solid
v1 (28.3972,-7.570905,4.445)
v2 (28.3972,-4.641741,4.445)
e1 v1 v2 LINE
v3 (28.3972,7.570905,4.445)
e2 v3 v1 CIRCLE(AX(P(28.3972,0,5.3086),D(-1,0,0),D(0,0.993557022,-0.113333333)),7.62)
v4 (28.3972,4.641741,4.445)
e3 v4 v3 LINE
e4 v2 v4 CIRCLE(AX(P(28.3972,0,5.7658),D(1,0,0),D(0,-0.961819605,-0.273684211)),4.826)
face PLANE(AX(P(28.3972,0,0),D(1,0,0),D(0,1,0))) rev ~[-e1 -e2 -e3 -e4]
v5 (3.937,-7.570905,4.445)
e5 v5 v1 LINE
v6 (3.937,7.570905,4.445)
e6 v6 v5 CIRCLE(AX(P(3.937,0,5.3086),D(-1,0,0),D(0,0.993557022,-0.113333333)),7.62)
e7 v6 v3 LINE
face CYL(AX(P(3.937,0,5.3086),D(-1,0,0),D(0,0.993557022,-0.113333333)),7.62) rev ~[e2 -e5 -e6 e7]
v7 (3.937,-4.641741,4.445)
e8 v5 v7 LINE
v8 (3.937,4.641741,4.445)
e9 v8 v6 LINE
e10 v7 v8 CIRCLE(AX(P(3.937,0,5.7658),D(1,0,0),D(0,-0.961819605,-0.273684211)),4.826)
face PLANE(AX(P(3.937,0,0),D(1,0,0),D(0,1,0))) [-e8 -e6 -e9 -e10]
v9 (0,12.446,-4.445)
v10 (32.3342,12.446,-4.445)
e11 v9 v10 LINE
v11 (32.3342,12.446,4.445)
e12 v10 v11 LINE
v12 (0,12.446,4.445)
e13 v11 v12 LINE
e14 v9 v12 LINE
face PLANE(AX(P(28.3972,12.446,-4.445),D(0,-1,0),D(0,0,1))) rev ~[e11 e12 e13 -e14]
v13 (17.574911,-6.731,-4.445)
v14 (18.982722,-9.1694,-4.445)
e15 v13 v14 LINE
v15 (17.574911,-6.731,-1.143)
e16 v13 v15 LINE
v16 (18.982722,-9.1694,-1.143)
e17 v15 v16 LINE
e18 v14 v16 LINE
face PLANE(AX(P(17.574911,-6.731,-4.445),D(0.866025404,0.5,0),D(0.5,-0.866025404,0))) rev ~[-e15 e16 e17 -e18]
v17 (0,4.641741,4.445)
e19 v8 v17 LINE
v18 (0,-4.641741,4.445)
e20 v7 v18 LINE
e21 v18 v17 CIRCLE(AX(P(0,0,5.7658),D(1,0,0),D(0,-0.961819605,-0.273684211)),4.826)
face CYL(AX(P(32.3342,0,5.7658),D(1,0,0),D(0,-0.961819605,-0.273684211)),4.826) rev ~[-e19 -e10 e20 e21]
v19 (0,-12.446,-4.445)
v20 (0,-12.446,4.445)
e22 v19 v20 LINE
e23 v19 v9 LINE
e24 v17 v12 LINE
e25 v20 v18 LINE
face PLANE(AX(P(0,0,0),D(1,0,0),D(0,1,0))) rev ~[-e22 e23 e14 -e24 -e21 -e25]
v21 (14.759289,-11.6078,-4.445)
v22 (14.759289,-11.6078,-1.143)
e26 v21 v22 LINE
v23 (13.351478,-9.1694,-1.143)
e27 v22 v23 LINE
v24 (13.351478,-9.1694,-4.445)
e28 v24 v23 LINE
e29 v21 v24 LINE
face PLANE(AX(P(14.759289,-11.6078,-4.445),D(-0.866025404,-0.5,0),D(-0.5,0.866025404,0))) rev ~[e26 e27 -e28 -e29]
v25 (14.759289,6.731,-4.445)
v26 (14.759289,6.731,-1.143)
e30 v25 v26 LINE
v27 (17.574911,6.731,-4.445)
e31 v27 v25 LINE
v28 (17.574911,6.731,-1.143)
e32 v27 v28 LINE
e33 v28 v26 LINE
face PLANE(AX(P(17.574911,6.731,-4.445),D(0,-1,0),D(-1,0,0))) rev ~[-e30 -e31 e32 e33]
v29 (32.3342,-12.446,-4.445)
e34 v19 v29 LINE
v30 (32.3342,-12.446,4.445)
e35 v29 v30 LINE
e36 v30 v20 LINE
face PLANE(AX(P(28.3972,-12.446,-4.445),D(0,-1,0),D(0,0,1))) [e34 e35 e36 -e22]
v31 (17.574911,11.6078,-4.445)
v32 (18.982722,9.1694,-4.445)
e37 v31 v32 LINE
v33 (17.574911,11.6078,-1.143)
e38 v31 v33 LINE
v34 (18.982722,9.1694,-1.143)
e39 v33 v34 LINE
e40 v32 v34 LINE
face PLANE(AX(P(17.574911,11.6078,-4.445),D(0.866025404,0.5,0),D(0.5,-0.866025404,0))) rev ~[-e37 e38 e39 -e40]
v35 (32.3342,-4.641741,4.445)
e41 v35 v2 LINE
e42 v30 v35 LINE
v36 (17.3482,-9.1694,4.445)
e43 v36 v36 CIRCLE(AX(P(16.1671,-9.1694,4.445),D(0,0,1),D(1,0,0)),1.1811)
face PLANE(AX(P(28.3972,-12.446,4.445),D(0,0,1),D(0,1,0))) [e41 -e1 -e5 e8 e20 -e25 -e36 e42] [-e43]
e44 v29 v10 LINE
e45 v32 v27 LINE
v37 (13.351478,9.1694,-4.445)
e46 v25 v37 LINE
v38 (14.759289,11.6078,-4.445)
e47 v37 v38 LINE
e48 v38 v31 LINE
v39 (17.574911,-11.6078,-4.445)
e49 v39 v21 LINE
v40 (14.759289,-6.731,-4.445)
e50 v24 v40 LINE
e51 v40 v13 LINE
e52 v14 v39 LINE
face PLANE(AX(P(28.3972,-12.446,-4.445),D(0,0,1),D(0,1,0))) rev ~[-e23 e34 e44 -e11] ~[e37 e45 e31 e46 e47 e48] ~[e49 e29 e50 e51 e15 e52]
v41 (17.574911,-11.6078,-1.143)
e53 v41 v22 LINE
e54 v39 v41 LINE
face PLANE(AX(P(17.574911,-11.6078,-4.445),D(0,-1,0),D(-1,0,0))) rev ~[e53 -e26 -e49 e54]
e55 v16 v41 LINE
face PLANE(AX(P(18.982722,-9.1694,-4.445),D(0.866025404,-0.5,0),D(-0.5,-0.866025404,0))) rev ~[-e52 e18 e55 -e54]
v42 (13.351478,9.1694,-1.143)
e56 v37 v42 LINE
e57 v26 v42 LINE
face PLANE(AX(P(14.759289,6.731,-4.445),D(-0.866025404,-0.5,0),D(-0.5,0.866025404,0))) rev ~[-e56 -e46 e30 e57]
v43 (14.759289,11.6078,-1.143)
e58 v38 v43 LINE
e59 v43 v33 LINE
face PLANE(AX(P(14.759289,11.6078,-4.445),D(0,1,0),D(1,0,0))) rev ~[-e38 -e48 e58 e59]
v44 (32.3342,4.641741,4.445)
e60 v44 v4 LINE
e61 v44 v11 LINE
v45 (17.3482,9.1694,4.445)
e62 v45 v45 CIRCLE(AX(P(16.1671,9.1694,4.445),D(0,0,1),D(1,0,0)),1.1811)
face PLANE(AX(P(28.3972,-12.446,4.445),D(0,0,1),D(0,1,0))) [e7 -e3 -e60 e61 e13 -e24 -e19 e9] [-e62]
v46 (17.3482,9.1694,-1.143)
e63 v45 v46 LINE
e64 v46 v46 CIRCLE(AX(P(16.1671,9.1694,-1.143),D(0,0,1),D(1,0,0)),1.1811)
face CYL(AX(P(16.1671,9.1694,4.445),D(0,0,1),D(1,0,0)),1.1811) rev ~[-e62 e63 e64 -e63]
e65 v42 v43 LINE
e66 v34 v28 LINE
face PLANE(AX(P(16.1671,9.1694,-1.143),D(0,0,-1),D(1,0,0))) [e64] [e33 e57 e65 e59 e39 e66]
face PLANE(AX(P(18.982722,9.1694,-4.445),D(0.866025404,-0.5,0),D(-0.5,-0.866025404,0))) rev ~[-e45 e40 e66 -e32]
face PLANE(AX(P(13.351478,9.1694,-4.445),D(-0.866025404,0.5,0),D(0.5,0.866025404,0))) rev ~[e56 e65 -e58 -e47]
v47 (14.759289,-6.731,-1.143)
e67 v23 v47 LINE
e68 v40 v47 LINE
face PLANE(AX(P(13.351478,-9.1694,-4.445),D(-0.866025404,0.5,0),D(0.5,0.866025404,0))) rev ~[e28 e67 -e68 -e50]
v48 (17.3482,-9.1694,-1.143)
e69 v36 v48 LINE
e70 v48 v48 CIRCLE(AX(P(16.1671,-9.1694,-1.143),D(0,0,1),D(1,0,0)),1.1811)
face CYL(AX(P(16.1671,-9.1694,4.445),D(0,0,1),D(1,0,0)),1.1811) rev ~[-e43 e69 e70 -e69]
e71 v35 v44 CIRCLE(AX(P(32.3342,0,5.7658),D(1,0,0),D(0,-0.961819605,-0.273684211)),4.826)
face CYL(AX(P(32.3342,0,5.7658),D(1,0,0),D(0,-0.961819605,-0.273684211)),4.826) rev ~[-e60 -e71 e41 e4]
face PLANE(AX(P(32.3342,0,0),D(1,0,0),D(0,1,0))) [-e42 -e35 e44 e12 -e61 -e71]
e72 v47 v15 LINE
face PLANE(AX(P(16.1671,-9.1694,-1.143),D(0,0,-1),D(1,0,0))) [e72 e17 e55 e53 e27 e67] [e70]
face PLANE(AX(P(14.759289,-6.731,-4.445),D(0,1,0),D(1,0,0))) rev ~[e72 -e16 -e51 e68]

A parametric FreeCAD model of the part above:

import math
import FreeCAD as App
import Part
import Sketcher
Q = App.Units.Quantity


def add_polygon(sketch, points):
    """Adds a closed chain of lines whose ends are joined by coincident constraints."""
    first, n = sketch.GeometryCount, len(points)
    for a, b in zip(points, points[1:] + points[:1]):
        sketch.addGeometry(Part.LineSegment(App.Vector(*a, 0), App.Vector(*b, 0)), False)
    for i in range(n):
        sketch.addConstraint(Sketcher.Constraint("Coincident", first + i, 2, first + (i + 1) % n, 1))

doc = App.newDocument("Part")
body = doc.addObject("PartDesign::Body", "Body")

# Sketch on YZ plane
sketch1 = body.newObject("Sketcher::SketchObject", "Sketch")
sketch1.AttachmentSupport = (doc.getObject("YZ_Plane"), [""])
sketch1.MapMode = "FlatFace"
add_polygon(sketch1, [(-12, 4), (-12, -4), (12, -4), (12, 4)])  # lines 0-3
sketch1.addConstraint([
    Sketcher.Constraint("Vertical", 0),
    Sketcher.Constraint("Horizontal", 1),
    Sketcher.Constraint("Vertical", 2),
    Sketcher.Constraint("Horizontal", 3),
    Sketcher.Constraint("Symmetric", 0, 2, 2, 2, -1, 1),
    Sketcher.Constraint("DistanceX", 1, 1, 1, 2, Q("0.98 in")),
    Sketcher.Constraint("DistanceY", 0, 2, 0, 1, Q("0.35 in")),
])
pad1 = body.newObject("PartDesign::Pad", "Pad")
pad1.Profile = sketch1
pad1.Length = Q("0.155 in")

# Sketch on YZ plane
sketch2 = body.newObject("Sketcher::SketchObject", "Sketch001")
sketch2.AttachmentSupport = (doc.getObject("YZ_Plane"), [""])
sketch2.MapMode = "FlatFace"
sketch2.AttachmentOffset = App.Placement(App.Vector(0, 0, 0.155 * 25.4), App.Rotation())
sketch2.addGeometry([
    Part.LineSegment(App.Vector(-7.6, 4.4, 0), App.Vector(-12.4, 4.4, 0)),  # 0
    Part.LineSegment(App.Vector(-12.4, 4.4, 0), App.Vector(-12.4, -4.4, 0)),  # 1
    Part.LineSegment(App.Vector(-12.4, -4.4, 0), App.Vector(12.4, -4.4, 0)),  # 2
    Part.LineSegment(App.Vector(12.4, -4.4, 0), App.Vector(12.4, 4.4, 0)),  # 3
    Part.LineSegment(App.Vector(12.4, 4.4, 0), App.Vector(7.6, 4.4, 0)),  # 4
    Part.ArcOfCircle(Part.Circle(App.Vector(0, 5.3, 0), App.Vector(0, 0, 1), 7.6), math.radians(-173), math.radians(-7)),  # 5
], False)
sketch2.addConstraint([
    Sketcher.Constraint("Coincident", 0, 2, 1, 1),
    Sketcher.Constraint("Coincident", 1, 2, 2, 1),
    Sketcher.Constraint("Coincident", 2, 2, 3, 1),
    Sketcher.Constraint("Coincident", 3, 2, 4, 1),
    Sketcher.Constraint("Coincident", 4, 2, 5, 2),
    Sketcher.Constraint("Coincident", 5, 1, 0, 1),
    Sketcher.Constraint("Horizontal", 0),
    Sketcher.Constraint("Vertical", 1),
    Sketcher.Constraint("Horizontal", 2),
    Sketcher.Constraint("Vertical", 3),
    Sketcher.Constraint("Horizontal", 4),
    Sketcher.Constraint("Symmetric", 0, 2, 2, 2, -1, 1),
    Sketcher.Constraint("Symmetric", 4, 2, 5, 1, -2),
    Sketcher.Constraint("Radius", 5, Q("0.3 in")),
    Sketcher.Constraint("DistanceX", 2, 1, 2, 2, Q("0.98 in")),
    Sketcher.Constraint("DistanceY", 1, 2, 1, 1, Q("0.35 in")),
    Sketcher.Constraint("DistanceY", -1, 1, 5, 3, Q("0.209 in")),
])
pad2 = body.newObject("PartDesign::Pad", "Pad001")
pad2.Profile = sketch2
pad2.Length = Q("0.963 in")

# Sketch on YZ plane
sketch3 = body.newObject("Sketcher::SketchObject", "Sketch002")
sketch3.AttachmentSupport = (doc.getObject("YZ_Plane"), [""])
sketch3.MapMode = "FlatFace"
sketch3.AttachmentOffset = App.Placement(App.Vector(0, 0, 1.118 * 25.4), App.Rotation())
add_polygon(sketch3, [(-12, 4), (-12, -4), (12, -4), (12, 4)])  # lines 0-3
sketch3.addConstraint([
    Sketcher.Constraint("Vertical", 0),
    Sketcher.Constraint("Horizontal", 1),
    Sketcher.Constraint("Vertical", 2),
    Sketcher.Constraint("Horizontal", 3),
    Sketcher.Constraint("Symmetric", 0, 2, 2, 2, -1, 1),
    Sketcher.Constraint("DistanceX", 1, 1, 1, 2, Q("0.98 in")),
    Sketcher.Constraint("DistanceY", 0, 2, 0, 1, Q("0.35 in")),
])
pad3 = body.newObject("PartDesign::Pad", "Pad002")
pad3.Profile = sketch3
pad3.Length = Q("0.155 in")

# Sketch on YZ plane
sketch4 = body.newObject("Sketcher::SketchObject", "Sketch003")
sketch4.AttachmentSupport = (doc.getObject("YZ_Plane"), [""])
sketch4.MapMode = "FlatFace"
sketch4.AttachmentOffset = App.Placement(App.Vector(0, 0, 1.273 * 25.4), App.Rotation())
sketch4.addGeometry([
    Part.LineSegment(App.Vector(4.6, 4.4, 0), App.Vector(-4.6, 4.4, 0)),
    Part.ArcOfCircle(Part.Circle(App.Vector(0, 5.8, 0), App.Vector(0, 0, 1), 4.8), math.radians(-164), math.radians(-16)),
], False)
sketch4.addConstraint([
    Sketcher.Constraint("Coincident", 0, 1, 1, 2),
    Sketcher.Constraint("Coincident", 1, 1, 0, 2),
    Sketcher.Constraint("Horizontal", 0),
    Sketcher.Constraint("PointOnObject", 1, 3, -2),
    Sketcher.Constraint("Radius", 1, Q("0.19 in")),
    Sketcher.Constraint("DistanceY", -1, 1, 1, 3, Q("0.227 in")),
    Sketcher.Constraint("DistanceY", -1, 1, 0, 1, Q("0.175 in")),
])
pocket1 = body.newObject("PartDesign::Pocket", "Pocket")
pocket1.Profile = sketch4
pocket1.Type = "ThroughAll"

# Sketch on XY plane
sketch5 = body.newObject("Sketcher::SketchObject", "Sketch004")
sketch5.AttachmentSupport = (doc.getObject("XY_Plane"), [""])
sketch5.MapMode = "FlatFace"
sketch5.AttachmentOffset = App.Placement(App.Vector(0, 0, 0.175 * 25.4), App.Rotation())
sketch5.addGeometry([
    Part.Circle(App.Vector(16.2, -9.2, 0), App.Vector(0, 0, 1), 1.2),
    Part.Circle(App.Vector(16.2, 9.2, 0), App.Vector(0, 0, 1), 1.2),
], False)
sketch5.addConstraint([
    Sketcher.Constraint("Equal", 0, 1),
    Sketcher.Constraint("Symmetric", 0, 3, 1, 3, -1),
    Sketcher.Constraint("Diameter", 0, Q("0.093 in")),
    Sketcher.Constraint("DistanceY", 0, 3, -1, 1, Q("0.361 in")),
    Sketcher.Constraint("DistanceX", -1, 1, 0, 3, Q("0.6365 in")),
])
pocket2 = body.newObject("PartDesign::Pocket", "Pocket001")
pocket2.Profile = sketch5
pocket2.Type = "ThroughAll"

# Sketch on XY plane
sketch6 = body.newObject("Sketcher::SketchObject", "Sketch005")
sketch6.AttachmentSupport = (doc.getObject("XY_Plane"), [""])
sketch6.MapMode = "FlatFace"
sketch6.AttachmentOffset = App.Placement(App.Vector(0, 0, -0.175 * 25.4), App.Rotation())
add_polygon(sketch6, [(14.8, 6.7), (13.4, 9.2), (14.8, 11.6), (17.6, 11.6), (19, 9.2), (17.6, 6.7)])  # lines 0-5
add_polygon(sketch6, [(13.4, -9.2), (14.8, -6.7), (17.6, -6.7), (19, -9.2), (17.6, -11.6), (14.8, -11.6)])  # lines 6-11
sketch6.addConstraint([
    Sketcher.Constraint("Horizontal", 2),
    Sketcher.Constraint("Horizontal", 5),
    Sketcher.Constraint("Horizontal", 7),
    Sketcher.Constraint("Horizontal", 10),
    Sketcher.Constraint("Symmetric", 5, 2, 6, 2, -1),
    Sketcher.Constraint("Symmetric", 3, 2, 8, 2, -1),
    Sketcher.Constraint("Symmetric", 2, 2, 9, 2, -1),
    Sketcher.Constraint("Symmetric", 0, 2, 11, 2, -1),
    Sketcher.Constraint("Parallel", 0, 3),
    Sketcher.Constraint("Parallel", 1, 4),
    Sketcher.Constraint("Parallel", 4, 6),
    Sketcher.Constraint("Parallel", 3, 8),
    Sketcher.Constraint("Parallel", 8, 11),
    Sketcher.Constraint("Horizontal", 0, 2, 3, 2),
    Sketcher.Constraint("Vertical", 2, 2, 4, 2),
    Sketcher.Constraint("Angle", 0, Q("120 deg")),
    Sketcher.Constraint("DistanceY", 6, 2, 5, 2, Q("0.53 in")),
    Sketcher.Constraint("DistanceY", -1, 1, 0, 2, Q("0.361 in")),
    Sketcher.Constraint("DistanceX", 2, 1, 2, 2, Q("2.815622 mm")),
    Sketcher.Constraint("DistanceX", -1, 1, 0, 2, Q("13.351478 mm")),
])
pocket3 = body.newObject("PartDesign::Pocket", "Pocket002")
pocket3.Profile = sketch6
pocket3.Length = Q("0.13 in")
pocket3.Reversed = True

doc.recompute()
